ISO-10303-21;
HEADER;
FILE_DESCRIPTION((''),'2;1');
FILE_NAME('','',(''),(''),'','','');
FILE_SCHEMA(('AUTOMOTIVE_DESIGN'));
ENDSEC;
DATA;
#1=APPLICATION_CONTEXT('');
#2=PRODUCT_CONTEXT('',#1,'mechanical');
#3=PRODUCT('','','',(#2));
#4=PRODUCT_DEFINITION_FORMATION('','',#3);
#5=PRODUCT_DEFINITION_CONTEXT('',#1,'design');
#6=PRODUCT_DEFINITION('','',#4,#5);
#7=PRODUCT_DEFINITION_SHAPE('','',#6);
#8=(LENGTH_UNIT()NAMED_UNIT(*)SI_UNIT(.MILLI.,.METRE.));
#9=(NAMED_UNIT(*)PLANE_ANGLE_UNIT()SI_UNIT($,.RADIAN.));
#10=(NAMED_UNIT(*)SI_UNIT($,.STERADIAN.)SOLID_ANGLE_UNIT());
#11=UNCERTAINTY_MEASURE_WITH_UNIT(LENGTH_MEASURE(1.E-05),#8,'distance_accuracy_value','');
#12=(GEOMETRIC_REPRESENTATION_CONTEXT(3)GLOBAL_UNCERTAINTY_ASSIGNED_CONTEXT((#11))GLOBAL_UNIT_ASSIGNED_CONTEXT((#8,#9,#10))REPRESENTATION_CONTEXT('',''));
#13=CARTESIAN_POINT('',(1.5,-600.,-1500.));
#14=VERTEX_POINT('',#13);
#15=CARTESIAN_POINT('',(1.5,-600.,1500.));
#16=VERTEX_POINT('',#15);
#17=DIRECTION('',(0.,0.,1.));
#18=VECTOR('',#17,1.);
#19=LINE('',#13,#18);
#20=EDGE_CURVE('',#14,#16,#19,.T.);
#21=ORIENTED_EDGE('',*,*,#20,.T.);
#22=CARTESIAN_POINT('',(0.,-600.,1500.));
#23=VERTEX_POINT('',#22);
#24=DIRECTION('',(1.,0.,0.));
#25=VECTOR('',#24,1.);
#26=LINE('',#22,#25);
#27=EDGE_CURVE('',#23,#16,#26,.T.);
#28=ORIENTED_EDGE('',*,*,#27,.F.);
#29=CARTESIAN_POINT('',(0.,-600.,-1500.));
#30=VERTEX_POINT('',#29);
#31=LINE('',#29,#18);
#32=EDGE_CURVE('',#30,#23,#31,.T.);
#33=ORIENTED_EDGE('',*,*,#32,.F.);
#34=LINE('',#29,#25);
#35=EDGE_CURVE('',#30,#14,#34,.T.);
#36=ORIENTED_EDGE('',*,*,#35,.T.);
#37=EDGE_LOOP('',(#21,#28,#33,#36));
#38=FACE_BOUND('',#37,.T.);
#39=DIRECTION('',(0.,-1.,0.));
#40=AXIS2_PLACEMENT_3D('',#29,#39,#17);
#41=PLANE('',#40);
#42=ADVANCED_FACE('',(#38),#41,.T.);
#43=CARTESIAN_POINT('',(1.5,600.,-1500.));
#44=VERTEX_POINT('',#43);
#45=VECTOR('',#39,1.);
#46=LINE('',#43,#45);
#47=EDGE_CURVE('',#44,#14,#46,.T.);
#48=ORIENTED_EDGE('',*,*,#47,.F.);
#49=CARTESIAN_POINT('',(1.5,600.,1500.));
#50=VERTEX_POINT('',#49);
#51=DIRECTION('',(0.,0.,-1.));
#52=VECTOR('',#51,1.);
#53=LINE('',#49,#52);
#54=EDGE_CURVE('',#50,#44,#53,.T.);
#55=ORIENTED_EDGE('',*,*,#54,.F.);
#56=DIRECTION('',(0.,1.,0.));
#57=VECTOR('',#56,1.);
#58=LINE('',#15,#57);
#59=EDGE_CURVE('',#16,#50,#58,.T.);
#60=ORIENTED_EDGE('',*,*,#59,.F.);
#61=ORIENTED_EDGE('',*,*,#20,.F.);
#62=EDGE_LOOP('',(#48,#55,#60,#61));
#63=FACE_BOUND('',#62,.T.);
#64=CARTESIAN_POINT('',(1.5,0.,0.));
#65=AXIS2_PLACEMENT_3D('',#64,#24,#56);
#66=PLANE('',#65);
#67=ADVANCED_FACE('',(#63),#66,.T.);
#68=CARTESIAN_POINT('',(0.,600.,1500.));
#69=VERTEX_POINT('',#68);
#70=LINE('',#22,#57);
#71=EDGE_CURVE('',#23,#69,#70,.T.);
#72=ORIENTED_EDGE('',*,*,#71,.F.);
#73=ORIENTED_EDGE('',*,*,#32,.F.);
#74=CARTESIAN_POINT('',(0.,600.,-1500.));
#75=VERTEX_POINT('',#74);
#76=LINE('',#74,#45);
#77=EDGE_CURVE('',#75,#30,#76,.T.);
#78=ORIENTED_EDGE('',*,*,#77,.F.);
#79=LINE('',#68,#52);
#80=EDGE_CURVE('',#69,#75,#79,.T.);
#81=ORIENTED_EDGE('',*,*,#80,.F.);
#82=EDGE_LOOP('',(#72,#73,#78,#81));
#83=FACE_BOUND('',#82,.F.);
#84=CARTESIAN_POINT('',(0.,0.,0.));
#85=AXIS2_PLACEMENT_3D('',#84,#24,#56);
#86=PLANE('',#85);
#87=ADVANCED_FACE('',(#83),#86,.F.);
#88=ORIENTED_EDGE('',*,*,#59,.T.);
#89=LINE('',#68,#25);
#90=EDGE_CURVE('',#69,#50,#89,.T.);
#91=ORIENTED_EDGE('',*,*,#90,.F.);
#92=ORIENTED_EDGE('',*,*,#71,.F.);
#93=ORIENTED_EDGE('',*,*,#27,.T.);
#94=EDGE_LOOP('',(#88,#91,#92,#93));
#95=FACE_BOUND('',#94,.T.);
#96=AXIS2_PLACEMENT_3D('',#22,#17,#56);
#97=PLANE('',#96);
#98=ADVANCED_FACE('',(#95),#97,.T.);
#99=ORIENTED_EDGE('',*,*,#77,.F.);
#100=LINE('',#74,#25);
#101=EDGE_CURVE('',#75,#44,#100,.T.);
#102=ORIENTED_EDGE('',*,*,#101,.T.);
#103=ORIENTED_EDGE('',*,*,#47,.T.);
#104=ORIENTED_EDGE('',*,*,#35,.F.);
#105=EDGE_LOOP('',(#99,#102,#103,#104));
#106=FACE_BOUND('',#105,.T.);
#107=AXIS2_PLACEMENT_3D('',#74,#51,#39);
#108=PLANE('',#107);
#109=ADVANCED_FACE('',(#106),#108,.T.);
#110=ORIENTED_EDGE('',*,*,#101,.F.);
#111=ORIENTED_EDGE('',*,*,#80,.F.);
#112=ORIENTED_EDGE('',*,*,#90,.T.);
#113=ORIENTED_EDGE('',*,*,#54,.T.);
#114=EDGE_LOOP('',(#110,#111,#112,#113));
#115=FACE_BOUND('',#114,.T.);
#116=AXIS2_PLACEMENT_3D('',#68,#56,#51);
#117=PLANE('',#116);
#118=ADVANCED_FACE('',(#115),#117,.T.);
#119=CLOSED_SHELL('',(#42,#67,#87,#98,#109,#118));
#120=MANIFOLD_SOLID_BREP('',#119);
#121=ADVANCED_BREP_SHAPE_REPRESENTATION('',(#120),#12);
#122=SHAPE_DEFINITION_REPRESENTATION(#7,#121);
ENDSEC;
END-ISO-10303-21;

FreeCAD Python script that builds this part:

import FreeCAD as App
import Part
import Sketcher
from FreeCAD import Vector
Q = App.Units.Quantity

doc = App.newDocument("Part")
params = doc.addObject("Spreadsheet::Sheet", "Params")
for row, (alias, value) in enumerate([
    ("sketch1_width", "1200 mm"),
    ("sketch1_height", "3000 mm"),
    ("pad1_length", "1.5 mm"),
], start=1):
    params.set(f"A{row}", alias)
    params.set(f"B{row}", "=" + value)
    params.setAlias(f"B{row}", alias)

body = doc.addObject("PartDesign::Body", "Body")

sketch1 = doc.addObject("Sketcher::SketchObject", "Sketch")
body.addObject(sketch1)
sketch1.AttachmentSupport = (doc.YZ_Plane, [""])
sketch1.MapMode = "FlatFace"
sketch1.addGeometry(Part.LineSegment(Vector(600, 1500, 0), Vector(-600, 1500, 0)), False)
sketch1.addGeometry(Part.LineSegment(Vector(-600, 1500, 0), Vector(-600, -1500, 0)), False)
sketch1.addGeometry(Part.LineSegment(Vector(-600, -1500, 0), Vector(600, -1500, 0)), False)
sketch1.addGeometry(Part.LineSegment(Vector(600, -1500, 0), Vector(600, 1500, 0)), False)
sketch1.addConstraint(Sketcher.Constraint("Coincident", 0, 2, 1, 1))
sketch1.addConstraint(Sketcher.Constraint("Coincident", 1, 2, 2, 1))
sketch1.addConstraint(Sketcher.Constraint("Coincident", 2, 2, 3, 1))
sketch1.addConstraint(Sketcher.Constraint("Coincident", 3, 2, 0, 1))
sketch1.addConstraint(Sketcher.Constraint("Horizontal", 0))
sketch1.addConstraint(Sketcher.Constraint("Vertical", 1))
sketch1.addConstraint(Sketcher.Constraint("Horizontal", 2))
sketch1.addConstraint(Sketcher.Constraint("Vertical", 3))
sketch1.addConstraint(Sketcher.Constraint("Symmetric", 0, 2, 2, 2, -1, 1))
sketch1.addConstraint(Sketcher.Constraint("DistanceX", 0, 2, 0, 1, Q("1200 mm")))
sketch1.addConstraint(Sketcher.Constraint("DistanceY", 1, 2, 1, 1, Q("3000 mm")))
sketch1.setExpression("Constraints[9]", "Params.sketch1_width")
sketch1.setExpression("Constraints[10]", "Params.sketch1_height")
pad1 = doc.addObject("PartDesign::Pad", "Pad")
body.addObject(pad1)
pad1.Profile = sketch1
pad1.setExpression("Length", "Params.pad1_length")

doc.recompute()
